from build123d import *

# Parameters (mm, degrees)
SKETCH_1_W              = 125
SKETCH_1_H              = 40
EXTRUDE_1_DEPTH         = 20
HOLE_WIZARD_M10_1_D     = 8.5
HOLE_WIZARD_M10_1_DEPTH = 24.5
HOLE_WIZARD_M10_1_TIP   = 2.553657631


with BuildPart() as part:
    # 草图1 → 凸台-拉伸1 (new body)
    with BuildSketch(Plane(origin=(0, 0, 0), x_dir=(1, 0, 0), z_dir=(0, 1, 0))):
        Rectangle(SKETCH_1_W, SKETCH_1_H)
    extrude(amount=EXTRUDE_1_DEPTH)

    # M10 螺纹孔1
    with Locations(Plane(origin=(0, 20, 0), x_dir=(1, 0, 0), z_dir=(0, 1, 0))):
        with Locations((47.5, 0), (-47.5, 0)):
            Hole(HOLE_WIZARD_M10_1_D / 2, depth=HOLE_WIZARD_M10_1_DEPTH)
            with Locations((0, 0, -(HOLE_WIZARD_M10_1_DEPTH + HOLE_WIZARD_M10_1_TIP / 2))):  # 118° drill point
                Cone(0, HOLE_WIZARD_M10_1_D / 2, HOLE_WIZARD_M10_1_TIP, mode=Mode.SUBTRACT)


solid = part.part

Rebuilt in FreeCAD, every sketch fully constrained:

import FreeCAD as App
import Part
import Sketcher
Q = App.Units.Quantity

doc = App.newDocument("Part")
body = doc.addObject("PartDesign::Body", "Body")

# Sketch on XZ plane
sketch1 = body.newObject("Sketcher::SketchObject", "Sketch")
sketch1.AttachmentSupport = (doc.getObject("XZ_Plane"), [""])
sketch1.MapMode = "FlatFace"
sketch1.addGeometry([
    Part.LineSegment(App.Vector(-62, -20, 0), App.Vector(-62, 20, 0)),
    Part.LineSegment(App.Vector(-62, 20, 0), App.Vector(62, 20, 0)),
    Part.LineSegment(App.Vector(62, 20, 0), App.Vector(62, -20, 0)),
    Part.LineSegment(App.Vector(62, -20, 0), App.Vector(-62, -20, 0)),
], False)
sketch1.addConstraint([
    Sketcher.Constraint("Coincident", 0, 2, 1, 1),
    Sketcher.Constraint("Coincident", 1, 2, 2, 1),
    Sketcher.Constraint("Coincident", 2, 2, 3, 1),
    Sketcher.Constraint("Coincident", 3, 2, 0, 1),
    Sketcher.Constraint("Vertical", 0),
    Sketcher.Constraint("Horizontal", 1),
    Sketcher.Constraint("Vertical", 2),
    Sketcher.Constraint("Horizontal", 3),
    Sketcher.Constraint("Symmetric", 0, 2, 2, 2, -1, 1),
    Sketcher.Constraint("DistanceX", 1, 1, 1, 2, Q("125 mm")),
    Sketcher.Constraint("DistanceY", 0, 1, 0, 2, Q("40 mm")),
])
pad1 = body.newObject("PartDesign::Pad", "Pad")
pad1.Profile = sketch1
pad1.Length = 20
pad1.Reversed = True

# Sketch on XZ plane
sketch2 = body.newObject("Sketcher::SketchObject", "Sketch001")
sketch2.AttachmentSupport = (doc.getObject("XZ_Plane"), [""])
sketch2.MapMode = "FlatFace"
sketch2.AttachmentOffset = App.Placement(App.Vector(0, 0, -20), App.Rotation())
sketch2.addGeometry([
    Part.Circle(App.Vector(47.5, 0, 0), App.Vector(0, 0, 1), 4.2),
    Part.Circle(App.Vector(-47.5, 0, 0), App.Vector(0, 0, 1), 4.2),
], False)
sketch2.addConstraint([
    Sketcher.Constraint("Equal", 0, 1),
    Sketcher.Constraint("Symmetric", 0, 3, 1, 3, -1, 1),
    Sketcher.Constraint("PointOnObject", 0, 3, -1),
    Sketcher.Constraint("Diameter", 0, Q("8.5 mm")),
    Sketcher.Constraint("DistanceX", 1, 3, 0, 3, Q("95 mm")),
])
doc.recompute()
hole = body.newObject("PartDesign::Hole", "Hole")
hole.Profile = sketch2
hole.ThreadType = "None"
hole.Diameter = 8.5
hole.DepthType = "Dimension"
hole.Depth = 24.5
hole.DrillPoint = "Angled"
hole.DrillPointAngle = 118
hole.Reversed = True

doc.recompute()
